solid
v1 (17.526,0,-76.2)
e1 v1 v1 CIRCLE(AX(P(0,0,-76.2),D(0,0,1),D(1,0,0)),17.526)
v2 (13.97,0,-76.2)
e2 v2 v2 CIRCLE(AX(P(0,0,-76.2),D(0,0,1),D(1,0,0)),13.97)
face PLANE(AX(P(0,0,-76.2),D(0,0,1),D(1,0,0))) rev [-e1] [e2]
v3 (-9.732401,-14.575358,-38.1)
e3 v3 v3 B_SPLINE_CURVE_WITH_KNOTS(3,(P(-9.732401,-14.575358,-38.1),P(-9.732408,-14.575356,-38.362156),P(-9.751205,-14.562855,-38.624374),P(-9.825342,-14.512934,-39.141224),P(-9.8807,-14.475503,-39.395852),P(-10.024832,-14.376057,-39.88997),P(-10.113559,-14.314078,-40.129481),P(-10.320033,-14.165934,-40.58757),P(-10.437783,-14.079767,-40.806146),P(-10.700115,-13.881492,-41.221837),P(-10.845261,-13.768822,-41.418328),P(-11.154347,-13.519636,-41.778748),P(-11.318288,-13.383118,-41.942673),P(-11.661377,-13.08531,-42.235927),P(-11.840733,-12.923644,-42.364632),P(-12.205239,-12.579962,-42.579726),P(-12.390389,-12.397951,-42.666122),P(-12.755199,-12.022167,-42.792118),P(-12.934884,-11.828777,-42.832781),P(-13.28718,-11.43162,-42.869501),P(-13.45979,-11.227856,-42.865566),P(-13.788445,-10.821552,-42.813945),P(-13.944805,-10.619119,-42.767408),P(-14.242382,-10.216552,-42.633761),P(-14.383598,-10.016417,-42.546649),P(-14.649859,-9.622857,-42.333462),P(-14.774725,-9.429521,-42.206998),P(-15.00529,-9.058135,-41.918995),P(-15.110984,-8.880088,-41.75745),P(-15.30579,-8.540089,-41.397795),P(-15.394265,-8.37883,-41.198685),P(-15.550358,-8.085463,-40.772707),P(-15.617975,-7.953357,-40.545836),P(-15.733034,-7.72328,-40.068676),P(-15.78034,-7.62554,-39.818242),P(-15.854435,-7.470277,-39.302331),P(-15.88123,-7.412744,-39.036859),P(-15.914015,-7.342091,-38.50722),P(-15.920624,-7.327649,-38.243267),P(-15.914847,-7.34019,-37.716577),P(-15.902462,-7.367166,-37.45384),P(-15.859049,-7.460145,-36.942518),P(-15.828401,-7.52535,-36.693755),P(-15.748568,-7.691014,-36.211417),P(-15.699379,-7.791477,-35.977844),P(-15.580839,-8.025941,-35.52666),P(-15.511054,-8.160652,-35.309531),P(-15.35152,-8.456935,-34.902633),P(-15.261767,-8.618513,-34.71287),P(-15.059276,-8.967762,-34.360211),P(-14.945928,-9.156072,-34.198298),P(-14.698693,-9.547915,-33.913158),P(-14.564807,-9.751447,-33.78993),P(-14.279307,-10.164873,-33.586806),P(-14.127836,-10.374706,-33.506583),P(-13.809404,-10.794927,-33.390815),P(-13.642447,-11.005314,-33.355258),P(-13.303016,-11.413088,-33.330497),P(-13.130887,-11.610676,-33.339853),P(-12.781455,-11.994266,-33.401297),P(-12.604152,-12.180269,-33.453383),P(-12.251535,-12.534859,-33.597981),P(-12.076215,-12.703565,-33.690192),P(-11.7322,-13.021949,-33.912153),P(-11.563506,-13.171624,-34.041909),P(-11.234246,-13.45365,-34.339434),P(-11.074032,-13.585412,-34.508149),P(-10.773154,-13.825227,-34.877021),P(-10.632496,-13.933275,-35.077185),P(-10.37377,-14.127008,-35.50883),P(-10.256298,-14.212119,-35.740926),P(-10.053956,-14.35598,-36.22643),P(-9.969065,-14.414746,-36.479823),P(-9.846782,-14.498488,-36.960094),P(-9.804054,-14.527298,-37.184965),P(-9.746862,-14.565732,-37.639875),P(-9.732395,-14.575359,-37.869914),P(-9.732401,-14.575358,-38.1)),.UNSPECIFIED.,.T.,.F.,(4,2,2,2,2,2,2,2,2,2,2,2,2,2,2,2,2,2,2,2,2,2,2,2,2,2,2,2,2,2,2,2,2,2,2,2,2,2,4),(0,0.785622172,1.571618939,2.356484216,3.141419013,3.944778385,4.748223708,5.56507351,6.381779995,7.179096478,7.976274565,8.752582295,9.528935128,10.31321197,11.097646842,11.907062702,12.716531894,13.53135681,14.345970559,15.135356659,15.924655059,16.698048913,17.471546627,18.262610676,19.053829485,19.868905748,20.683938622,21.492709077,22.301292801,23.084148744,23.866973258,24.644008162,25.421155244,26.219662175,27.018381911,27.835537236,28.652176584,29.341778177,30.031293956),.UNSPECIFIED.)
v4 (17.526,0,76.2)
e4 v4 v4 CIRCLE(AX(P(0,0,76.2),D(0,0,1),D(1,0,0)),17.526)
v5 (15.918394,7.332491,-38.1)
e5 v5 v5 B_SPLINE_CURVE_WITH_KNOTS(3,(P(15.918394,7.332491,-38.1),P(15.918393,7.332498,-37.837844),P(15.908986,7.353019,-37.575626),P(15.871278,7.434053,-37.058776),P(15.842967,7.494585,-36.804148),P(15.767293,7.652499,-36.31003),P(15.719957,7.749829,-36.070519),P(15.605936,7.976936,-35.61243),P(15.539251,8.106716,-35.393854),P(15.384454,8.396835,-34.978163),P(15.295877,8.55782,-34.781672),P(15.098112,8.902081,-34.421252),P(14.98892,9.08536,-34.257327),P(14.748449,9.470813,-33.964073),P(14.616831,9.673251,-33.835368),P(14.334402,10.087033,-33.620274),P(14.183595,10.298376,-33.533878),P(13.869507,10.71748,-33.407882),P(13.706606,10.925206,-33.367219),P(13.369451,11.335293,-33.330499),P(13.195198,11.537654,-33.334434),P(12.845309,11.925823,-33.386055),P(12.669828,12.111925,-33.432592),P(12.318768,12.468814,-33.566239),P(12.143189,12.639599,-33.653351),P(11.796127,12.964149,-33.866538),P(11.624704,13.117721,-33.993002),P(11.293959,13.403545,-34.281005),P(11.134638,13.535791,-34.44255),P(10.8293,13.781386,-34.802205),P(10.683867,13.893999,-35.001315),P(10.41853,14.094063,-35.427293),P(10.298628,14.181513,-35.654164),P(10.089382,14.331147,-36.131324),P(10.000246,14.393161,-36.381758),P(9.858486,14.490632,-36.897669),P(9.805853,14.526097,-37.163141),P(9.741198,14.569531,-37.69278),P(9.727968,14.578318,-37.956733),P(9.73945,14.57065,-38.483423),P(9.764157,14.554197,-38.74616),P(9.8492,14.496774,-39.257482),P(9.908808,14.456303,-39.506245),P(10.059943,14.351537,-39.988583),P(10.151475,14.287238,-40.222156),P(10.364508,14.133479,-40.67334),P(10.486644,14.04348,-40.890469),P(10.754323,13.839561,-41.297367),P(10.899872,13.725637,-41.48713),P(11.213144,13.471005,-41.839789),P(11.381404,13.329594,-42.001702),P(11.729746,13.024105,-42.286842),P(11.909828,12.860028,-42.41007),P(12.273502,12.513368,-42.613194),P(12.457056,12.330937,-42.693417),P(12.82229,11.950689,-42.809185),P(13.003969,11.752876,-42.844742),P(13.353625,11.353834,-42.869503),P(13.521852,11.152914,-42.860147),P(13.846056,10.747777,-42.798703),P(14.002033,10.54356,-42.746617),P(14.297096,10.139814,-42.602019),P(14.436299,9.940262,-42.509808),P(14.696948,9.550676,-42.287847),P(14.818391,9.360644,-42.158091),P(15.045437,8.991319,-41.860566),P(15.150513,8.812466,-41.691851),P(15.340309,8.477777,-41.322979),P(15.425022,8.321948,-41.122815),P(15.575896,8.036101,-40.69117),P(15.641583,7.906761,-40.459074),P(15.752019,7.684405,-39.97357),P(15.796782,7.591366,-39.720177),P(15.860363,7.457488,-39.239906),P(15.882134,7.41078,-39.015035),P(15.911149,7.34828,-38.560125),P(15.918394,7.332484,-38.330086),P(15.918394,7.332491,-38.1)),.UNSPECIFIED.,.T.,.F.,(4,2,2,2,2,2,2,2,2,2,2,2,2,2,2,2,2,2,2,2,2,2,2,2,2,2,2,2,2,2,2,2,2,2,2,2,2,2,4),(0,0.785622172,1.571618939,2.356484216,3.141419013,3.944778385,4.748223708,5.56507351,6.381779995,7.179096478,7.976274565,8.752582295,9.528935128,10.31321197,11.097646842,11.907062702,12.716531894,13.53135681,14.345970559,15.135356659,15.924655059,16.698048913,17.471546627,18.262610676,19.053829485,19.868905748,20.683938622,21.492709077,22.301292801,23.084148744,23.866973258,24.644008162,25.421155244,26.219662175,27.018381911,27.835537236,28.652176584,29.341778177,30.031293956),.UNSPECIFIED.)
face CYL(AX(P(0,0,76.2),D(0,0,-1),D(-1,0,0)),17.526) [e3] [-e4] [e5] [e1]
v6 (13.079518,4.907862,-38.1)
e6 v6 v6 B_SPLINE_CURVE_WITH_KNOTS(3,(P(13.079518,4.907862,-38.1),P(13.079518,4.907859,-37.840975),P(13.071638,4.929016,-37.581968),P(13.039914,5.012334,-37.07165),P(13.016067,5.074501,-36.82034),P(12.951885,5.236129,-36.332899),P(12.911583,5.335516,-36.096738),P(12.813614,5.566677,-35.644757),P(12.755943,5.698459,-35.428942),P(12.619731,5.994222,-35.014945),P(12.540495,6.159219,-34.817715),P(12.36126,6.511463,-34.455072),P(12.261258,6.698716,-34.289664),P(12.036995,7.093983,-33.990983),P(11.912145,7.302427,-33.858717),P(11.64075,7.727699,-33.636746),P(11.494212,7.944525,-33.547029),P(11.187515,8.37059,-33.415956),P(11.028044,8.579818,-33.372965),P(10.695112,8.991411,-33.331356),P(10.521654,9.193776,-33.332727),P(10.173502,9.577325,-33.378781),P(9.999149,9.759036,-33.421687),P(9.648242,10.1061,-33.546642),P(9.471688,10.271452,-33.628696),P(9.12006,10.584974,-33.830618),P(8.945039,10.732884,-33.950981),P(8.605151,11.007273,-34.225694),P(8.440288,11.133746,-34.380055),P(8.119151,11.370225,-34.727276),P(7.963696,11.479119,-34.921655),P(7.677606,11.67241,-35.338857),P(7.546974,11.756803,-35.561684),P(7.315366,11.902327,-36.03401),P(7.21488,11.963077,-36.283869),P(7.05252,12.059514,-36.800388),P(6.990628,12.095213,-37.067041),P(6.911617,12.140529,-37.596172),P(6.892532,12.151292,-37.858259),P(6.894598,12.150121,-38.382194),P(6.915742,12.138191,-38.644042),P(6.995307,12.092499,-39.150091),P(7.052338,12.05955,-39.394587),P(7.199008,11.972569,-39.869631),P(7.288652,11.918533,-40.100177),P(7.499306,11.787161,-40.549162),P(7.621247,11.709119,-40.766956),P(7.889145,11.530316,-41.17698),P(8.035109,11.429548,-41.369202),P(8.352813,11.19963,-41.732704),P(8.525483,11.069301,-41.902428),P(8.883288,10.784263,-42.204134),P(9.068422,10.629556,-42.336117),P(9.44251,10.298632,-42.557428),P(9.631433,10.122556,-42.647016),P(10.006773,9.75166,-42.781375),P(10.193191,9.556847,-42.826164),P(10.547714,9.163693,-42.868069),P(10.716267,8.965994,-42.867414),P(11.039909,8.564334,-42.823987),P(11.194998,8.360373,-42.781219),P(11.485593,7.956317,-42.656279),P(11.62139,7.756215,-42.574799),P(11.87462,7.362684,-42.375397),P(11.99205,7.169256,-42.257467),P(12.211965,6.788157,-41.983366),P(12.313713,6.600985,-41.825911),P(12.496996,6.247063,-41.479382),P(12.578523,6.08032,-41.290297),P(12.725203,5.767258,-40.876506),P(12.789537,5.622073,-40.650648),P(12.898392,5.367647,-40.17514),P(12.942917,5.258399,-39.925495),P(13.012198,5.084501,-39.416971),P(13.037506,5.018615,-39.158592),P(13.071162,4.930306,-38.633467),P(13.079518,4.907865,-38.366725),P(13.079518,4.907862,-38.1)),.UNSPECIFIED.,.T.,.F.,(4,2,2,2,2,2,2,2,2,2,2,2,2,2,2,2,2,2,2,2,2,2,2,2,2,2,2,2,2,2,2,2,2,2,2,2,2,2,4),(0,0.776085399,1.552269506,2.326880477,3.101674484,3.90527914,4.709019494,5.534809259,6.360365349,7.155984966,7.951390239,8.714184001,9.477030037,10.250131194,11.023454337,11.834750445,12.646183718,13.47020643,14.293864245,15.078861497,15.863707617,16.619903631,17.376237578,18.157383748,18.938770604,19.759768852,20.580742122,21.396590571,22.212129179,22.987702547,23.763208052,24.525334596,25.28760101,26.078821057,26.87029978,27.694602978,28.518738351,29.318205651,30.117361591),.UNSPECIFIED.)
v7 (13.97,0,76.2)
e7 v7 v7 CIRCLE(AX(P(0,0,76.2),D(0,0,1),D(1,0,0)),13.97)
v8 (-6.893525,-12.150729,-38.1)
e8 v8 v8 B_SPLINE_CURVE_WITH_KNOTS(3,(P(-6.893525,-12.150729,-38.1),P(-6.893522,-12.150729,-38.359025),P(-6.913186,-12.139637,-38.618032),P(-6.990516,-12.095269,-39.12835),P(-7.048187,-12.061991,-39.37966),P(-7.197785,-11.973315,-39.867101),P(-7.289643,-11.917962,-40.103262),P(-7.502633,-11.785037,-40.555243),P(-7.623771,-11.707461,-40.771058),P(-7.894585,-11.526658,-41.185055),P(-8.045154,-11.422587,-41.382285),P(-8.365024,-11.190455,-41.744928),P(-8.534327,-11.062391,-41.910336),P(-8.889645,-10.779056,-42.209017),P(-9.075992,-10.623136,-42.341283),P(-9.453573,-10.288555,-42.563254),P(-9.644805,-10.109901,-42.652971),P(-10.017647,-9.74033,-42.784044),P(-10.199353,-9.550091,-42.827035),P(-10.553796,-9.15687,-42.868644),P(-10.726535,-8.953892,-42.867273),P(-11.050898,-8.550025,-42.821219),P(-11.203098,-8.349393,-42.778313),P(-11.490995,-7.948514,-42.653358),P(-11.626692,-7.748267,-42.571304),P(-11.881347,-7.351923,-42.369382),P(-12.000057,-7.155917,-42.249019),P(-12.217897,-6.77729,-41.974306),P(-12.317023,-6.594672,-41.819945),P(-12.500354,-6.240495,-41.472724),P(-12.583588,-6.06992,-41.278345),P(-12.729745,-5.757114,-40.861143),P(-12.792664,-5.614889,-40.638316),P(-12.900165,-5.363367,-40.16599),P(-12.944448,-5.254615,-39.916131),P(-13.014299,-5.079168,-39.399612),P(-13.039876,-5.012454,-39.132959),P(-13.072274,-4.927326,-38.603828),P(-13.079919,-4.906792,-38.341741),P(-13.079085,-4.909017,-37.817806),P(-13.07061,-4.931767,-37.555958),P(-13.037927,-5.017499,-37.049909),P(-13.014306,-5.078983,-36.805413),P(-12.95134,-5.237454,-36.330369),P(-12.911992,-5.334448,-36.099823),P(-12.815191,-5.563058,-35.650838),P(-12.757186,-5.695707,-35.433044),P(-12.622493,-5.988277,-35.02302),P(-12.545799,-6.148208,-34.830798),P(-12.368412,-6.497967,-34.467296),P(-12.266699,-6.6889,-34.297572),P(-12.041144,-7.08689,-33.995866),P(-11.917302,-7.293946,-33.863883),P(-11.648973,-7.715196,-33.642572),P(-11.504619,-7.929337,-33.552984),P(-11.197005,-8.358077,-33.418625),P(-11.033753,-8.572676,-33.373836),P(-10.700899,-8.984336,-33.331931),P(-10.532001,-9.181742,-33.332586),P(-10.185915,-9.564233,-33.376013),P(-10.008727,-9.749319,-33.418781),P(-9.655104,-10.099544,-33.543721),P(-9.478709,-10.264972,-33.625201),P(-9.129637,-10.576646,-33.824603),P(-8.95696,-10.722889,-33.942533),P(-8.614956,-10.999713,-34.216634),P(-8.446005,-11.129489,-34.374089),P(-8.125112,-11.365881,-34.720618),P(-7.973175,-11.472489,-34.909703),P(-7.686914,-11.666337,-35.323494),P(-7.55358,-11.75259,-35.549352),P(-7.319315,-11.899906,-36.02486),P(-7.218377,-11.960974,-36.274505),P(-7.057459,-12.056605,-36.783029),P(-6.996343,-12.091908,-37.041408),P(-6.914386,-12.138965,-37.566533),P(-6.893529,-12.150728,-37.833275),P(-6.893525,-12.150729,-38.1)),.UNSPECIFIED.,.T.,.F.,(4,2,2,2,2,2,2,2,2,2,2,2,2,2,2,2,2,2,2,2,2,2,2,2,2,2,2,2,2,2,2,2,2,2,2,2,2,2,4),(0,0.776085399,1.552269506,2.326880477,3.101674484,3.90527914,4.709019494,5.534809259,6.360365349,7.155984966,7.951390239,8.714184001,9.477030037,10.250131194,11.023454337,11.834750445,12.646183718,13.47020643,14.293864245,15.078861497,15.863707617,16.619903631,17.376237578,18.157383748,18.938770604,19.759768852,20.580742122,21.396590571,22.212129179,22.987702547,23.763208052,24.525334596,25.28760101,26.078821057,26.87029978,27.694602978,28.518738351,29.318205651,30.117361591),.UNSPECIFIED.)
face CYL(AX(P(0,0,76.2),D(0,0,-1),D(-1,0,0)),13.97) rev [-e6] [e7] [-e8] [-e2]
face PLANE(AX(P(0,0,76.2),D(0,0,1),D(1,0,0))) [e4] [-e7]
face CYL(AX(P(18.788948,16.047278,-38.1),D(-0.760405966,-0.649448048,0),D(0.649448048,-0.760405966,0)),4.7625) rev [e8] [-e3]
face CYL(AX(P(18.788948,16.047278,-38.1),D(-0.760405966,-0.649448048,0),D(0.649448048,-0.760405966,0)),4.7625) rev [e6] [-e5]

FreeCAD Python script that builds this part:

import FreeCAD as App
import Part
import Sketcher
Q = App.Units.Quantity

doc = App.newDocument("Part")
body = doc.addObject("PartDesign::Body", "Body")

# Sketch on XY plane
sketch1 = body.newObject("Sketcher::SketchObject", "Sketch")
sketch1.AttachmentSupport = (doc.getObject("XY_Plane"), [""])
sketch1.MapMode = "FlatFace"
sketch1.addGeometry([
    Part.Circle(App.Vector(0, 0, 0), App.Vector(0, 0, 1), 17.526),
    Part.Circle(App.Vector(0, 0, 0), App.Vector(0, 0, 1), 13.97),
], False)
sketch1.addConstraint([
    Sketcher.Constraint("Coincident", 0, 3, -1, 1),
    Sketcher.Constraint("Coincident", 1, 3, -1, 1),
    Sketcher.Constraint("Diameter", 1, Q("1.1 in")),
    Sketcher.Constraint("Diameter", 0, Q("1.38 in")),
])
pad1 = body.newObject("PartDesign::Pad", "Pad")
pad1.Profile = sketch1
pad1.Length = Q("6 in")
pad1.Midplane = True

# Sketch on an angled plane
sketch2 = body.newObject("Sketcher::SketchObject", "Sketch001")
sketch2.Placement = App.Placement(App.Vector(-33.800045, -28.867966, -158.75), App.Rotation(App.Vector(-0.649448048, 0.760405966, 0), App.Vector(0, 0, -1), App.Vector(-0.760405966, -0.649448048, 0), "ZXY"))
sketch2.addGeometry(Part.Circle(App.Vector(0, -120.65, 0), App.Vector(0, 0, 1), 4.7625), False)
sketch2.addConstraint([
    Sketcher.Constraint("PointOnObject", 0, 3, -2),
    Sketcher.Constraint("Diameter", 0, Q("0.375 in")),
    Sketcher.Constraint("DistanceY", 0, 3, -1, 1, Q("4.75 in")),
])
pocket1 = body.newObject("PartDesign::Pocket", "Pocket")
pocket1.Profile = sketch2
pocket1.Type = "ThroughAll"

doc.recompute()
